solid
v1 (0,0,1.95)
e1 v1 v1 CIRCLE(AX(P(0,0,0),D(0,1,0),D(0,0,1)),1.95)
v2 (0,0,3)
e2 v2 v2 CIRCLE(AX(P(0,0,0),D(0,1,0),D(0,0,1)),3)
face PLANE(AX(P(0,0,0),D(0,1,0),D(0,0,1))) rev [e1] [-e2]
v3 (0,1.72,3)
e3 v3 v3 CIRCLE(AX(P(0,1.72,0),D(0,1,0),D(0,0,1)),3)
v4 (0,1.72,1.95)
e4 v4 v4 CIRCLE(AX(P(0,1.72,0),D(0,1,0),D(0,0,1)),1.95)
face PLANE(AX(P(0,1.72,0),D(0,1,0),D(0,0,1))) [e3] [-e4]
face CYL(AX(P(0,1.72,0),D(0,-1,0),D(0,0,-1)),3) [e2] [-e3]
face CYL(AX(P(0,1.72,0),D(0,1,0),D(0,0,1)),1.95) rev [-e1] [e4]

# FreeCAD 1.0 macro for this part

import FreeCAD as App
import Part
import Sketcher

V = App.Vector
Q = App.Units.Quantity

doc = App.newDocument("Part")
body = doc.addObject("PartDesign::Body", "Body")

sketch1 = body.newObject("Sketcher::SketchObject", "Sketch")
sketch1.AttachmentSupport = (doc.getObject("XZ_Plane"), [""])
sketch1.MapMode = "FlatFace"
sketch1.addGeometry(Part.Circle(V(0, 0, 0), V(0, 0, 1), 3), False)
sketch1.addConstraint([
    Sketcher.Constraint("Coincident", 0, 3, -1, 1),
    Sketcher.Constraint("Diameter", 0, Q("6 mm")),
])
pad1 = body.newObject("PartDesign::Pad", "Pad")
pad1.Profile = sketch1
pad1.Length = 1.72
pad1.Reversed = True

sketch2 = body.newObject("Sketcher::SketchObject", "Sketch001")
sketch2.AttachmentSupport = (doc.getObject("XZ_Plane"), [""])
sketch2.MapMode = "FlatFace"
sketch2.AttachmentOffset = App.Placement(V(0, 0, -1.72), App.Rotation())
sketch2.addGeometry(Part.Circle(V(0, 0, 0), V(0, 0, 1), 1.95), False)
sketch2.addConstraint([
    Sketcher.Constraint("Coincident", 0, 3, -1, 1),
    Sketcher.Constraint("Diameter", 0, Q("3.9 mm")),
])
doc.recompute()
hole = body.newObject("PartDesign::Hole", "Hole")
hole.Profile = sketch2
hole.ThreadType = "None"
hole.Diameter = 3.9
hole.DepthType = "ThroughAll"
hole.Reversed = True

doc.recompute()
